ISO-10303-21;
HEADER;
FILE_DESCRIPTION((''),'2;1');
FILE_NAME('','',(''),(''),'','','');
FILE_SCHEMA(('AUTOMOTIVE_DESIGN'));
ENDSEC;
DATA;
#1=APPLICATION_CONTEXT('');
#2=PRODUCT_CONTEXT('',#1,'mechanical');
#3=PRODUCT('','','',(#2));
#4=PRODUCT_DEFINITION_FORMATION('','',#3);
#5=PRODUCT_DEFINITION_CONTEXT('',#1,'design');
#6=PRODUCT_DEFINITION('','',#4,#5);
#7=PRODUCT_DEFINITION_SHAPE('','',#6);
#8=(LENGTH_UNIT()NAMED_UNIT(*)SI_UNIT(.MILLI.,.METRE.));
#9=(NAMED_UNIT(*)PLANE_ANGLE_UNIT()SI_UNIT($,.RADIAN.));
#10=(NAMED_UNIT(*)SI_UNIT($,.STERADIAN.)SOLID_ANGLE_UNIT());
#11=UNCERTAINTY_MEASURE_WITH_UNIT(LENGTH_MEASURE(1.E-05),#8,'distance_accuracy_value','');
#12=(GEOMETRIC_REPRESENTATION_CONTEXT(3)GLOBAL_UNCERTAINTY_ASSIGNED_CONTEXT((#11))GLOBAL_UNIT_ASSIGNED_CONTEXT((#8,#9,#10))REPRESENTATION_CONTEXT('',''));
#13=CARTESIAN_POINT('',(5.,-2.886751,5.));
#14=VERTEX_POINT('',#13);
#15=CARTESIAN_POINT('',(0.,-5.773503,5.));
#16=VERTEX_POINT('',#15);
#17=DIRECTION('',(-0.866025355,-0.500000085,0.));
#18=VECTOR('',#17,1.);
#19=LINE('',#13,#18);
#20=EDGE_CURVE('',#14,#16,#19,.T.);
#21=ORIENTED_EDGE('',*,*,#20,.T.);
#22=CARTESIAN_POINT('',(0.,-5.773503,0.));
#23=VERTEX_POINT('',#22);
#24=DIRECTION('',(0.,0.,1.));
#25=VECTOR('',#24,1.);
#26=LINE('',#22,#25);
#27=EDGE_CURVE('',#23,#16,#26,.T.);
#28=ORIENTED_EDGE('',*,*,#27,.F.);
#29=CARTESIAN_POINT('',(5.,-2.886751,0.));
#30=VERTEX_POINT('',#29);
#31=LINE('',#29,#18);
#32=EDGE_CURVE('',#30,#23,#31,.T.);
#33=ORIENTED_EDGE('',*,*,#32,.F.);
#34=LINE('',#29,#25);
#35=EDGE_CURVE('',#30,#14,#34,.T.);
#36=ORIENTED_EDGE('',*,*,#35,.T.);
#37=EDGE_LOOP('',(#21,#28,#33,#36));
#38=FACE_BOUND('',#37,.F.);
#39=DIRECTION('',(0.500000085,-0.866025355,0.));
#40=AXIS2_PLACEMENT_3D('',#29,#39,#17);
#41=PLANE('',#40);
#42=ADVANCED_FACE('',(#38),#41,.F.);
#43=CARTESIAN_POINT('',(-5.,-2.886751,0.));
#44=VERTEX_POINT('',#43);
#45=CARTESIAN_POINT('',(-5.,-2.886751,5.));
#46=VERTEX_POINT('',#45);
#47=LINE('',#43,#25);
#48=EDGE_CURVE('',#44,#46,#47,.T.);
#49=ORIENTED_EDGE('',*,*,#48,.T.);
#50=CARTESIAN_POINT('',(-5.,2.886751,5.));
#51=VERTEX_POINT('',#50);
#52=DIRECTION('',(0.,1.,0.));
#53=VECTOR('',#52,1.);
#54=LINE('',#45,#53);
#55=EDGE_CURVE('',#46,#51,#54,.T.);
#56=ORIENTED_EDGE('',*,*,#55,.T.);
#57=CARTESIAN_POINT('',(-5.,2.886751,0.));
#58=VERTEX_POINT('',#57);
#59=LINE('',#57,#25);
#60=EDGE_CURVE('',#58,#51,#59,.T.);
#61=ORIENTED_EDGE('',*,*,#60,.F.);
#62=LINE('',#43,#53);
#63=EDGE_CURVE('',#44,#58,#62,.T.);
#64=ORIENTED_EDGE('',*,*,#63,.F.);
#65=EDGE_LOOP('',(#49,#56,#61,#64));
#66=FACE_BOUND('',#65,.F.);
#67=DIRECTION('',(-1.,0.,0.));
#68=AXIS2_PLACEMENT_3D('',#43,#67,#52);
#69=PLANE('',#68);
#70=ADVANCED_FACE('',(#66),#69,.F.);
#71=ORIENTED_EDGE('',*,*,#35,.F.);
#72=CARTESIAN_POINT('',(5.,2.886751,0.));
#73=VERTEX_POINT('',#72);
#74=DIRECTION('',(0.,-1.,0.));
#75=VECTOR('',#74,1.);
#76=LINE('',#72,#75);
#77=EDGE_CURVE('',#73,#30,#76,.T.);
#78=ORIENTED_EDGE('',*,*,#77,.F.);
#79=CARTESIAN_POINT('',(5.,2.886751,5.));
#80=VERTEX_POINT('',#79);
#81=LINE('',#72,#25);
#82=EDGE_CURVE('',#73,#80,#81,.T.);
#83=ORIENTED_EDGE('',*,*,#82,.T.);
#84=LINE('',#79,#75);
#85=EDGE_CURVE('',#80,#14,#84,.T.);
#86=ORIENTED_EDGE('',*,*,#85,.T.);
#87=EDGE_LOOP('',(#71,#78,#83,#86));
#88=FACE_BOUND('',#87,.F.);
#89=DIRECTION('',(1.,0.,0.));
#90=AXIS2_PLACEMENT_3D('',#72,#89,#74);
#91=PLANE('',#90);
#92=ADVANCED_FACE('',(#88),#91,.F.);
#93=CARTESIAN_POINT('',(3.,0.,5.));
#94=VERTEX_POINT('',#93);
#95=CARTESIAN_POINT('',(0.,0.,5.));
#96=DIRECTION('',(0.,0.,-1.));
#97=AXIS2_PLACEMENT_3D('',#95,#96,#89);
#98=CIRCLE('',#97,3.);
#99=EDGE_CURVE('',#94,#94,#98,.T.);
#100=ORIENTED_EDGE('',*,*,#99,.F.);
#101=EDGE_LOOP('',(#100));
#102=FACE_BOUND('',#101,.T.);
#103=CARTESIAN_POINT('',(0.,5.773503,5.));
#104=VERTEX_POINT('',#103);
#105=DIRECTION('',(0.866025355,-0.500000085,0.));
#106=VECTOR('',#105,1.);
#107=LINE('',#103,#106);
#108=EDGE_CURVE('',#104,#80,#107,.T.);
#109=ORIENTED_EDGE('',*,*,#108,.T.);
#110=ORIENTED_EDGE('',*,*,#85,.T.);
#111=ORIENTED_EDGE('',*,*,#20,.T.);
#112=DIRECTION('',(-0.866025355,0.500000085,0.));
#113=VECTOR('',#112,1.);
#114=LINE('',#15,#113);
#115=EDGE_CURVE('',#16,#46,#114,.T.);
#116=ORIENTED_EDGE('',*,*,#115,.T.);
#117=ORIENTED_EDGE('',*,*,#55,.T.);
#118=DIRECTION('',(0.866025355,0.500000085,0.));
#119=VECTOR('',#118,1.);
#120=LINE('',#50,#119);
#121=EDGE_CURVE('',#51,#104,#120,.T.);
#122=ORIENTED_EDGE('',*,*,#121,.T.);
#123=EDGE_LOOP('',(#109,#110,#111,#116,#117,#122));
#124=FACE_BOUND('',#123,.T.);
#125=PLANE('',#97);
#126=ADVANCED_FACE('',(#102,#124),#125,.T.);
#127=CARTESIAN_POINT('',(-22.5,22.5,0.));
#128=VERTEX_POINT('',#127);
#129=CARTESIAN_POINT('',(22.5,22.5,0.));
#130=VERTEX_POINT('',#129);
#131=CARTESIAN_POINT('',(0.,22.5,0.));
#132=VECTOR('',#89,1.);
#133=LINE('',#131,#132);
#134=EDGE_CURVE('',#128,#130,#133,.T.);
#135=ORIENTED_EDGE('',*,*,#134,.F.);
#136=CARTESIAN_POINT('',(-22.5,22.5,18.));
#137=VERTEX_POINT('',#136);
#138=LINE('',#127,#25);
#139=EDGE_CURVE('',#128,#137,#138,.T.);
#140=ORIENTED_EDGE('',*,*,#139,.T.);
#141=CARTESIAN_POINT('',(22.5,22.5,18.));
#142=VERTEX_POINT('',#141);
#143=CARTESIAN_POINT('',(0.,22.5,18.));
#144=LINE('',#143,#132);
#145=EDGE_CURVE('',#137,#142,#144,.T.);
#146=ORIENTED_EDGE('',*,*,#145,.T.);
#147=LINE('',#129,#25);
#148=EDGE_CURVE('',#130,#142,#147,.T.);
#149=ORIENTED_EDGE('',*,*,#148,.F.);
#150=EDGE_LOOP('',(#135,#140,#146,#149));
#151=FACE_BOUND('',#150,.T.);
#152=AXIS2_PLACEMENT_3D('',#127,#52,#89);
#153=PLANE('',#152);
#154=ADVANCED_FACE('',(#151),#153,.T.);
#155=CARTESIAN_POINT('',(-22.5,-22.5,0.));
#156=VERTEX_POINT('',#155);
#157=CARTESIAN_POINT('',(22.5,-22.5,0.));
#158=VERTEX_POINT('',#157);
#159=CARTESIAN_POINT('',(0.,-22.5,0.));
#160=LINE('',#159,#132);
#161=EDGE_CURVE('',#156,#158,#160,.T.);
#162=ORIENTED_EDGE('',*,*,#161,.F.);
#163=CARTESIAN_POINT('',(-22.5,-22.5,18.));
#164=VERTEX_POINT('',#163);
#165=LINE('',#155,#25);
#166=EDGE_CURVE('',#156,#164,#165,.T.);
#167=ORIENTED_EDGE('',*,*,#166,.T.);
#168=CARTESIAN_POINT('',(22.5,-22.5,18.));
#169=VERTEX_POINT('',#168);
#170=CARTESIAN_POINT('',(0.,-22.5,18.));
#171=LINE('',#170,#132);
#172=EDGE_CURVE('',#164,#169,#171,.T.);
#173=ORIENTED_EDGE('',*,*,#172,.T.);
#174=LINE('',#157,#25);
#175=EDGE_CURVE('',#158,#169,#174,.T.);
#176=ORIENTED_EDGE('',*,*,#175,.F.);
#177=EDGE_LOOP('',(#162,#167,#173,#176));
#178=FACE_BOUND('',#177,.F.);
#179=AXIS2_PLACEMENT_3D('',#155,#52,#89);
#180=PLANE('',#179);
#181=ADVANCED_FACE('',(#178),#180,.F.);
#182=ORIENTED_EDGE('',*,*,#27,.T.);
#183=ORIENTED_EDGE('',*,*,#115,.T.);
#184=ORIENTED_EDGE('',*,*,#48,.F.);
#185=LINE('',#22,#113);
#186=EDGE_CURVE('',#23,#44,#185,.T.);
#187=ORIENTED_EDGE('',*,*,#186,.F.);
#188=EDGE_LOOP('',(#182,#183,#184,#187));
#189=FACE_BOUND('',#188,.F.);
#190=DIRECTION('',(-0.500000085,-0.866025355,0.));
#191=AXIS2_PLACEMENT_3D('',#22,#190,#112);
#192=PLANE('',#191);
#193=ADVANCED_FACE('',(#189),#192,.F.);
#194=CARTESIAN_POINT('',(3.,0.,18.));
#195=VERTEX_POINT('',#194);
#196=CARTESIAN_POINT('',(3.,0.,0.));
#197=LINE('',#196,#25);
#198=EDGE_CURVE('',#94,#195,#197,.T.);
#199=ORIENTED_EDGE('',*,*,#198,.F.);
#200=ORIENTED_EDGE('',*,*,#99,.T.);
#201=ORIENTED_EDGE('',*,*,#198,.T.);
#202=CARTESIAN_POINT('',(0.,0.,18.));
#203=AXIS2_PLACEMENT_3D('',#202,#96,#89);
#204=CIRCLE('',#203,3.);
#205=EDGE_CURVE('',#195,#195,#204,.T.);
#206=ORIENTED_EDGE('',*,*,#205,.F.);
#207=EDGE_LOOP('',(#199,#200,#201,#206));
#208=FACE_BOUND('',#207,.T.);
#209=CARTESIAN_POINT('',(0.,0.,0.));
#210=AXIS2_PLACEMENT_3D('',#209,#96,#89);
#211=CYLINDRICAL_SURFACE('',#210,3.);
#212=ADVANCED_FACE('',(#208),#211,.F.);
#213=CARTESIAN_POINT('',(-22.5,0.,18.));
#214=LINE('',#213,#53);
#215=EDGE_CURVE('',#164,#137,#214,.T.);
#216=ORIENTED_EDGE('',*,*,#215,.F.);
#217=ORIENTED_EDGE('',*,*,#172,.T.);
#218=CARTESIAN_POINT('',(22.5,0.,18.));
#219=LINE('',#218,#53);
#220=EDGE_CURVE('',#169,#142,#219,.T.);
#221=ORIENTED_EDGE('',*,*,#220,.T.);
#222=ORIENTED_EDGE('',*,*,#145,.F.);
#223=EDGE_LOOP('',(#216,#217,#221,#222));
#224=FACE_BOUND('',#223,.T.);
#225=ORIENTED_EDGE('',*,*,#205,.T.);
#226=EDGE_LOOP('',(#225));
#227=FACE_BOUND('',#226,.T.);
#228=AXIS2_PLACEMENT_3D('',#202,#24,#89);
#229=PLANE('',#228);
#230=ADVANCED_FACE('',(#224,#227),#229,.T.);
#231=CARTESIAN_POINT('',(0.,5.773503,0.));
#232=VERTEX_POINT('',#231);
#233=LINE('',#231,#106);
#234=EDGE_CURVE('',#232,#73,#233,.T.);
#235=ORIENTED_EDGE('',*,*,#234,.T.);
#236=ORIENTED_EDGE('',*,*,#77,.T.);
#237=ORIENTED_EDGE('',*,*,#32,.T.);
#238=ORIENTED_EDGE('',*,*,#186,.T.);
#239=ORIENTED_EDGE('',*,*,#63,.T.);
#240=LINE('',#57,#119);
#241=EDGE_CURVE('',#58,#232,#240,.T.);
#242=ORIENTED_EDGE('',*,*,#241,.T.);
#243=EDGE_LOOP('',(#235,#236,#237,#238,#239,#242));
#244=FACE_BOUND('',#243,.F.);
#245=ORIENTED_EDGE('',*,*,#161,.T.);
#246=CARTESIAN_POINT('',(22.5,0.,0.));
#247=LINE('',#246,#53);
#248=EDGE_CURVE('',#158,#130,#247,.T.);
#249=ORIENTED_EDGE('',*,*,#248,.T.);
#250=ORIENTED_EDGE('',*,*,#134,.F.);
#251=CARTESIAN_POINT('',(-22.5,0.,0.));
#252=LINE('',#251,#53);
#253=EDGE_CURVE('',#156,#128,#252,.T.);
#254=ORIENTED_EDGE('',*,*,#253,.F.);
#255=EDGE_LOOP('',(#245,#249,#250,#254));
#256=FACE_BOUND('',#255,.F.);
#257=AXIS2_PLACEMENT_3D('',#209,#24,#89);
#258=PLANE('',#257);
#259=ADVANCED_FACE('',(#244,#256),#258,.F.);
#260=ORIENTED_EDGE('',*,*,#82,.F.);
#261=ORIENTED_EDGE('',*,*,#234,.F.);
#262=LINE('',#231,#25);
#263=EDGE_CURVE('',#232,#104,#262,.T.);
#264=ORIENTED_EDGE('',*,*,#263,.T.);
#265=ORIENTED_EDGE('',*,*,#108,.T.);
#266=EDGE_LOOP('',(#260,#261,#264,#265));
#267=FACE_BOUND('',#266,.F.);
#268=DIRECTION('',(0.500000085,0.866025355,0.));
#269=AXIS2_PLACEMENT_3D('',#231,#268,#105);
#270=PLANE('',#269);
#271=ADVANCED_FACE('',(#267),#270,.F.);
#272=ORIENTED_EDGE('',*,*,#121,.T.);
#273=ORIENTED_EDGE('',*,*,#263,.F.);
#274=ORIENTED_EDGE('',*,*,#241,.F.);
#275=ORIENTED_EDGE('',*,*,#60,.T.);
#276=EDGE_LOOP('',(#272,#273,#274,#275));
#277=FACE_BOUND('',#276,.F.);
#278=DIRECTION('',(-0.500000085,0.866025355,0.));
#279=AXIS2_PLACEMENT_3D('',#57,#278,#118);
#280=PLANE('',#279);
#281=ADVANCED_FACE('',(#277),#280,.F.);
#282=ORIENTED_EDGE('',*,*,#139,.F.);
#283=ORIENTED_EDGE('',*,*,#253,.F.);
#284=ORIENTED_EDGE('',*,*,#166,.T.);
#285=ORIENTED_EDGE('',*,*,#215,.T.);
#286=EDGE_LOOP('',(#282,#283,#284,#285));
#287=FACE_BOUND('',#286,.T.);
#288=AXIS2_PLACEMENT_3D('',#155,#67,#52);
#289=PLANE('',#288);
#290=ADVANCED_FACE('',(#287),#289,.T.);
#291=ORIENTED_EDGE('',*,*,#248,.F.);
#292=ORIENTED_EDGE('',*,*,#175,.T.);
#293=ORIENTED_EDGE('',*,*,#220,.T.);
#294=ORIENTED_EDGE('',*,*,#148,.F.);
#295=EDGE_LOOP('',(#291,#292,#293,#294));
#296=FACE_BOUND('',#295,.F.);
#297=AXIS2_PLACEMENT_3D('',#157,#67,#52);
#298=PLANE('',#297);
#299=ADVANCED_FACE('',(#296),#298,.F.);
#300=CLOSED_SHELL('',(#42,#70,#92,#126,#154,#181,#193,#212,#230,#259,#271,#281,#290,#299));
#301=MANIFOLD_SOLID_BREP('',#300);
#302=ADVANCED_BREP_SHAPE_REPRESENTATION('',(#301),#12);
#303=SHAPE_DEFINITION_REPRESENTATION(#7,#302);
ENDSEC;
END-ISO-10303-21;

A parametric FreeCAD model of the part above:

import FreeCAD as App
import Part
import Sketcher

V = App.Vector
Q = App.Units.Quantity


def add_polygon(sketch, points):
    """Adds a closed chain of lines whose ends are joined by coincident constraints."""
    first, n = sketch.GeometryCount, len(points)
    for a, b in zip(points, points[1:] + points[:1]):
        sketch.addGeometry(Part.LineSegment(App.Vector(*a, 0), App.Vector(*b, 0)), False)
    for i in range(n):
        sketch.addConstraint(Sketcher.Constraint("Coincident", first + i, 2, first + (i + 1) % n, 1))

doc = App.newDocument("Part")
body = doc.addObject("PartDesign::Body", "Body")

sketch1 = body.newObject("Sketcher::SketchObject", "Sketch")
sketch1.AttachmentSupport = (doc.getObject("XY_Plane"), [""])
sketch1.MapMode = "FlatFace"
add_polygon(sketch1, [(-22, 22), (-22, -22), (22, -22), (22, 22)])
sketch1.addConstraint(Sketcher.Constraint("Vertical", 0))
sketch1.addConstraint(Sketcher.Constraint("Horizontal", 1))
sketch1.addConstraint(Sketcher.Constraint("Vertical", 2))
sketch1.addConstraint(Sketcher.Constraint("Horizontal", 3))
sketch1.addConstraint(Sketcher.Constraint("Symmetric", 0, 2, 2, 2, -1, 1))
sketch1.addConstraint(Sketcher.Constraint("Equal", 3, 0))
sketch1.addConstraint(Sketcher.Constraint("DistanceX", 1, 1, 1, 2, Q("45 mm")))
pad1 = body.newObject("PartDesign::Pad", "Pad")
pad1.Profile = sketch1
pad1.Length = 18

sketch2 = body.newObject("Sketcher::SketchObject", "Sketch001")
sketch2.AttachmentSupport = (doc.getObject("XY_Plane"), [""])
sketch2.MapMode = "FlatFace"
sketch2.addGeometry(Part.Circle(V(0, 0, 0), V(0, 0, 1), 3), False)
sketch2.addConstraint(Sketcher.Constraint("Coincident", 0, 3, -1, 1))
sketch2.addConstraint(Sketcher.Constraint("Diameter", 0, Q("6 mm")))
pocket1 = body.newObject("PartDesign::Pocket", "Pocket")
pocket1.Profile = sketch2
pocket1.Type = "ThroughAll"
pocket1.Reversed = True

sketch3 = body.newObject("Sketcher::SketchObject", "Sketch002")
sketch3.AttachmentSupport = (doc.getObject("XY_Plane"), [""])
sketch3.MapMode = "FlatFace"
add_polygon(sketch3, [(5, 3), (5, -3), (0, -6), (-5, -3), (-5, 3), (0, 6)])
sketch3.addConstraint(Sketcher.Constraint("Vertical", 0))
sketch3.addConstraint(Sketcher.Constraint("Vertical", 3))
sketch3.addConstraint(Sketcher.Constraint("Symmetric", 0, 2, 3, 2, -1, 1))
sketch3.addConstraint(Sketcher.Constraint("Symmetric", 1, 2, 4, 2, -1, 1))
sketch3.addConstraint(Sketcher.Constraint("PointOnObject", 1, 2, -2))
sketch3.addConstraint(Sketcher.Constraint("Parallel", 2, 5))
sketch3.addConstraint(Sketcher.Constraint("Horizontal", 0, 2, 2, 2))
sketch3.addConstraint(Sketcher.Constraint("Angle", 1, Q("-149.999994 deg")))
sketch3.addConstraint(Sketcher.Constraint("DistanceX", -1, 1, 0, 2, Q("5 mm")))
sketch3.addConstraint(Sketcher.Constraint("DistanceY", 0, 2, 0, 1, Q("5.773502 mm")))
pocket2 = body.newObject("PartDesign::Pocket", "Pocket001")
pocket2.Profile = sketch3
pocket2.Length = 5
pocket2.Reversed = True

doc.recompute()
